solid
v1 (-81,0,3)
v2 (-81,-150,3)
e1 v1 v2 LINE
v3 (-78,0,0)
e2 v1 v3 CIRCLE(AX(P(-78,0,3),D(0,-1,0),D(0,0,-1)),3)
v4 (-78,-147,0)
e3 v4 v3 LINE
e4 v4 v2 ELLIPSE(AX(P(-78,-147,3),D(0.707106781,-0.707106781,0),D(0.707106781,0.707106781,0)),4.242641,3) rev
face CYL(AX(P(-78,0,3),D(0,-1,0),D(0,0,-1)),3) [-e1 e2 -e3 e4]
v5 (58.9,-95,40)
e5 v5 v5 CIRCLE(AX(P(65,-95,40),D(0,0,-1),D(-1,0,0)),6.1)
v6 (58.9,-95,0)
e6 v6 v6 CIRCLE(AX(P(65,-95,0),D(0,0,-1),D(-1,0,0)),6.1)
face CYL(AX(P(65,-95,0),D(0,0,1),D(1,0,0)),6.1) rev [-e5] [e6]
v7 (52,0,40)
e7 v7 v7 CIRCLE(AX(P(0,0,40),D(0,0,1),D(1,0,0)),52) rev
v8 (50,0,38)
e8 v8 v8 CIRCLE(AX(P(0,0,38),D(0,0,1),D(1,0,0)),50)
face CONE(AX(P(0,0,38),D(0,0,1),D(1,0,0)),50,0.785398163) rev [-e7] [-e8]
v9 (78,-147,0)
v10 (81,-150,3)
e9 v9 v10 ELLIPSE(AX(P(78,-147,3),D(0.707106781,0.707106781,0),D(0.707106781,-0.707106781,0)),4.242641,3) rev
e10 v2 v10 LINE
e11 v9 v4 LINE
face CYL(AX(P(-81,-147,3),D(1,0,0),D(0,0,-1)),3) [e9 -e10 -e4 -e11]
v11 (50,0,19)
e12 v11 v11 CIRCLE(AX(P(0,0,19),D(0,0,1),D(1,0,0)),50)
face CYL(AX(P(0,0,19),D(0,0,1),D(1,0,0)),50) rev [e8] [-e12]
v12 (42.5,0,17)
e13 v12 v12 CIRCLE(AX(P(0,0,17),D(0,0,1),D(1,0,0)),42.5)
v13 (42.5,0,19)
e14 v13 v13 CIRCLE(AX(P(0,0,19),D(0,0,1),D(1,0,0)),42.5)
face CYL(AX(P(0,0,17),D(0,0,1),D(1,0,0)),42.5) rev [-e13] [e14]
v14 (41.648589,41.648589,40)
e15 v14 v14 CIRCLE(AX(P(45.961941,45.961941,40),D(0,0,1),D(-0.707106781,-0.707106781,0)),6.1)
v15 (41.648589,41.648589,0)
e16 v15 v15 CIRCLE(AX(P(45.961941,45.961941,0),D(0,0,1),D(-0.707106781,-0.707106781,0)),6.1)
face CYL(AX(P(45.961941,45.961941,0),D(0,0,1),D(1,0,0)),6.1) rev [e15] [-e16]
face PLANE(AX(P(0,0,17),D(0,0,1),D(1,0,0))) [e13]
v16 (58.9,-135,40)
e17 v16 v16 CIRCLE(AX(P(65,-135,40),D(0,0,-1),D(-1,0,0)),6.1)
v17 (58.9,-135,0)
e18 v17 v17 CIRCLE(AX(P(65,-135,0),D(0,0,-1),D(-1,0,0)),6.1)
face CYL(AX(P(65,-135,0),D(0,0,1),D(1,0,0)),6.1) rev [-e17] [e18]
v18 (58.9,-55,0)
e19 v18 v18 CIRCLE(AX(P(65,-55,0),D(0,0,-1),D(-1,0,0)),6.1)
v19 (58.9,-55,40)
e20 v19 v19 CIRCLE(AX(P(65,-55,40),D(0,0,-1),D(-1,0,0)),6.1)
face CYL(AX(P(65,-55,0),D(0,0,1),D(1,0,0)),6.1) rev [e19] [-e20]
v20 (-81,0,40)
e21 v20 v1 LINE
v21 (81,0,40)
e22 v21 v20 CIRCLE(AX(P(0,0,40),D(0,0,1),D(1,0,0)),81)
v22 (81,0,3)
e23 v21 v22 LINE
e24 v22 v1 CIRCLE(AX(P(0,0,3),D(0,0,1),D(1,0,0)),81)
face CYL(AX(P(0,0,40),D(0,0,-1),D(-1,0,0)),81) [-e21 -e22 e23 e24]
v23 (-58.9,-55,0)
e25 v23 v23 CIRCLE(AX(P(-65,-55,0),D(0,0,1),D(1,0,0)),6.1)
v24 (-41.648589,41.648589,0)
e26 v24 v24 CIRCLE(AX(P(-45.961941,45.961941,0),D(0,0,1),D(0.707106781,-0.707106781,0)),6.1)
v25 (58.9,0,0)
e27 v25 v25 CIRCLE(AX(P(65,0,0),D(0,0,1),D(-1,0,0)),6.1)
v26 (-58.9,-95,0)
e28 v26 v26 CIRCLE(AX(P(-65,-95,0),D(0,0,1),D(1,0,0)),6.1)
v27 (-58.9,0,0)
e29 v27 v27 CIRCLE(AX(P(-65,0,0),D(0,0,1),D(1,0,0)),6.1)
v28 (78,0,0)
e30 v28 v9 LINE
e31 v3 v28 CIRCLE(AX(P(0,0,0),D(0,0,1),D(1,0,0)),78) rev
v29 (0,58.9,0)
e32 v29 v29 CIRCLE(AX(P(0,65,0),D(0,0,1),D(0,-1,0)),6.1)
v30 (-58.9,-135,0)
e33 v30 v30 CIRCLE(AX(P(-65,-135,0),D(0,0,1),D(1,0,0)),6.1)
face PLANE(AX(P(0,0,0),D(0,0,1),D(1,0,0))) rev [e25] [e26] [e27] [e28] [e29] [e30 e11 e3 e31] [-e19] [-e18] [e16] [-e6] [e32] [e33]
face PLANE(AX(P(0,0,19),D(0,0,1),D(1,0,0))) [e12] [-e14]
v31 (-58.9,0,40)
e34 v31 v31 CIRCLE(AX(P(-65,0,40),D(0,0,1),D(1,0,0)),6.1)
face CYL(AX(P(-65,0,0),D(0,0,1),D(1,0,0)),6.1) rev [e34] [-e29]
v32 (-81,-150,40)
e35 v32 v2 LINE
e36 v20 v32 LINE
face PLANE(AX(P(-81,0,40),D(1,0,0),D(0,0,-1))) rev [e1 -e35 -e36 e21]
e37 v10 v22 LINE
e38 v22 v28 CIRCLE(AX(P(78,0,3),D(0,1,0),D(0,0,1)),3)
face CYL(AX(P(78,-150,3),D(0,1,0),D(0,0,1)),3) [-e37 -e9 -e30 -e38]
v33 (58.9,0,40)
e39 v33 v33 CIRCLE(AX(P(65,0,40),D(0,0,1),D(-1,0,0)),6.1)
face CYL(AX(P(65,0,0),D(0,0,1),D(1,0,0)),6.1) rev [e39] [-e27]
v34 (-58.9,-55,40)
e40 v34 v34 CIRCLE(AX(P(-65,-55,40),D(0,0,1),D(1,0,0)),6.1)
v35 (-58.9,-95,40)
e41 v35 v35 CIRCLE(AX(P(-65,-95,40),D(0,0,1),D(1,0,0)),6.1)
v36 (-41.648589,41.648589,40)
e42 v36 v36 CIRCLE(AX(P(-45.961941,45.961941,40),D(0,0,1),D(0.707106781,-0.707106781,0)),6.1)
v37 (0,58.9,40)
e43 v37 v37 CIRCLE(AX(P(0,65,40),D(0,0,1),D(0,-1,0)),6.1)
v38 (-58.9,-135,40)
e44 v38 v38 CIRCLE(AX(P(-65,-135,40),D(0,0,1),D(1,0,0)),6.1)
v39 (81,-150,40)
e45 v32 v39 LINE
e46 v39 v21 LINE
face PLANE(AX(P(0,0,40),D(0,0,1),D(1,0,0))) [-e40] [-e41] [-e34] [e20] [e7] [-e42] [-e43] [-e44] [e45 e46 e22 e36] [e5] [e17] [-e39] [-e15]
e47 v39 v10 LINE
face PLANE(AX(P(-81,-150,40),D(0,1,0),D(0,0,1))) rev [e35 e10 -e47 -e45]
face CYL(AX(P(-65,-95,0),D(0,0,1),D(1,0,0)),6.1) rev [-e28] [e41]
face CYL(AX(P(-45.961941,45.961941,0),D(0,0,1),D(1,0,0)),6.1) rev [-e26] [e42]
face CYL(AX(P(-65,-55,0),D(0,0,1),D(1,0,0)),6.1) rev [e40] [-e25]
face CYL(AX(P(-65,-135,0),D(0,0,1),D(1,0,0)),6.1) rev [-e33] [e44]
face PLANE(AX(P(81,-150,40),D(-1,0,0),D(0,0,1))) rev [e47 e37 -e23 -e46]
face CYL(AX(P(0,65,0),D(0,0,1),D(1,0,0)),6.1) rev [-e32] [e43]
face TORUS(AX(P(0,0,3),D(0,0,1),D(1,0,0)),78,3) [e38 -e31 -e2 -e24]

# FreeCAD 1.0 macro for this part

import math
import FreeCAD as App
import Part
import Sketcher

V = App.Vector
Q = App.Units.Quantity


def edges_at(feature, points):
    """Names of the edges that pass closest to the given points."""
    edges = feature.Shape.Edges
    near = lambda p: min(range(len(edges)), key=lambda i: edges[i].distToShape(Part.Vertex(*p))[0])
    return sorted({f"Edge{near(p) + 1}" for p in points})

doc = App.newDocument("Part")
body = doc.addObject("PartDesign::Body", "Body")

# Sketch on XY plane
sketch1 = body.newObject("Sketcher::SketchObject", "Sketch")
sketch1.AttachmentSupport = (doc.getObject("XY_Plane"), [""])
sketch1.MapMode = "FlatFace"
sketch1.addGeometry(Part.LineSegment(V(-81, 0, 0), V(-81, -150, 0)), False)
sketch1.addGeometry(Part.LineSegment(V(-81, -150, 0), V(81, -150, 0)), False)
sketch1.addGeometry(Part.LineSegment(V(81, -150, 0), V(81, 0, 0)), False)
sketch1.addGeometry(Part.ArcOfCircle(Part.Circle(V(0, 0, 0), V(0, 0, 1), 81), math.radians(0), math.radians(180)), False)
sketch1.addConstraint(Sketcher.Constraint("Coincident", 0, 2, 1, 1))
sketch1.addConstraint(Sketcher.Constraint("Coincident", 1, 2, 2, 1))
sketch1.addConstraint(Sketcher.Constraint("Tangent", 2, 2, 3, 1))
sketch1.addConstraint(Sketcher.Constraint("Tangent", 3, 2, 0, 1))
sketch1.addConstraint(Sketcher.Constraint("Vertical", 0))
sketch1.addConstraint(Sketcher.Constraint("Horizontal", 1))
sketch1.addConstraint(Sketcher.Constraint("Vertical", 2))
sketch1.addConstraint(Sketcher.Constraint("Coincident", 3, 3, -1, 1))
sketch1.addConstraint(Sketcher.Constraint("Radius", 3, Q("81 mm")))
sketch1.addConstraint(Sketcher.Constraint("DistanceY", 0, 2, 0, 1, Q("150 mm")))
pad1 = body.newObject("PartDesign::Pad", "Pad")
pad1.Profile = sketch1
pad1.Length = 40

# Sketch on XY plane
sketch2 = body.newObject("Sketcher::SketchObject", "Sketch001")
sketch2.AttachmentSupport = (doc.getObject("XY_Plane"), [""])
sketch2.MapMode = "FlatFace"
sketch2.AttachmentOffset = App.Placement(V(0, 0, 40), App.Rotation())
sketch2.addGeometry(Part.Circle(V(-65, 0, 0), V(0, 0, 1), 6), False)
sketch2.addConstraint(Sketcher.Constraint("PointOnObject", 0, 3, -1))
sketch2.addConstraint(Sketcher.Constraint("Diameter", 0, Q("12.2 mm")))
sketch2.addConstraint(Sketcher.Constraint("DistanceX", 0, 3, -1, 1, Q("65 mm")))
pocket1 = body.newObject("PartDesign::Pocket", "Pocket")
pocket1.Profile = sketch2
pocket1.Length = 40
doc.recompute()

polarpattern = body.newObject("PartDesign::PolarPattern", "PolarPattern")
polarpattern.Originals = [pocket1]
polarpattern.Axis = (doc.getObject("Z_Axis"), [""])
polarpattern.Angle = 180
polarpattern.Occurrences = 5
polarpattern.Reversed = True
body.Tip = polarpattern

# Sketch on XY plane
sketch3 = body.newObject("Sketcher::SketchObject", "Sketch002")
sketch3.AttachmentSupport = (doc.getObject("XY_Plane"), [""])
sketch3.MapMode = "FlatFace"
sketch3.AttachmentOffset = App.Placement(V(0, 0, 40), App.Rotation())
sketch3.addGeometry(Part.Circle(V(-65, -135, 0), V(0, 0, 1), 6), False)
sketch3.addGeometry(Part.Circle(V(-65, -95, 0), V(0, 0, 1), 6), False)
sketch3.addGeometry(Part.Circle(V(-65, -55, 0), V(0, 0, 1), 6), False)
sketch3.addConstraint(Sketcher.Constraint("Equal", 0, 1))
sketch3.addConstraint(Sketcher.Constraint("Equal", 1, 2))
sketch3.addConstraint(Sketcher.Constraint("Vertical", 0, 3, 1, 3))
sketch3.addConstraint(Sketcher.Constraint("Vertical", 1, 3, 2, 3))
sketch3.addConstraint(Sketcher.Constraint("Diameter", 0, Q("12.2 mm")))
sketch3.addConstraint(Sketcher.Constraint("DistanceX", 0, 3, -1, 1, Q("65 mm")))
sketch3.addConstraint(Sketcher.Constraint("DistanceY", 0, 3, -1, 1, Q("135 mm")))
sketch3.addConstraint(Sketcher.Constraint("DistanceY", 1, 3, -1, 1, Q("95 mm")))
sketch3.addConstraint(Sketcher.Constraint("DistanceY", 2, 3, -1, 1, Q("55 mm")))
pocket2 = body.newObject("PartDesign::Pocket", "Pocket001")
pocket2.Profile = sketch3
pocket2.Length = 40
doc.recompute()

mirrored = body.newObject("PartDesign::Mirrored", "Mirrored")
mirrored.Originals = [pocket2]
mirrored.MirrorPlane = (doc.getObject("YZ_Plane"), [""])
body.Tip = mirrored

# Sketch on XY plane
sketch4 = body.newObject("Sketcher::SketchObject", "Sketch003")
sketch4.AttachmentSupport = (doc.getObject("XY_Plane"), [""])
sketch4.MapMode = "FlatFace"
sketch4.AttachmentOffset = App.Placement(V(0, 0, 40), App.Rotation())
sketch4.addGeometry(Part.Circle(V(0, 0, 0), V(0, 0, 1), 50), False)
sketch4.addConstraint(Sketcher.Constraint("Coincident", 0, 3, -1, 1))
sketch4.addConstraint(Sketcher.Constraint("Diameter", 0, Q("100 mm")))
pocket3 = body.newObject("PartDesign::Pocket", "Pocket002")
pocket3.Profile = sketch4
pocket3.Length = 21

# Sketch on XY plane
sketch5 = body.newObject("Sketcher::SketchObject", "Sketch004")
sketch5.AttachmentSupport = (doc.getObject("XY_Plane"), [""])
sketch5.MapMode = "FlatFace"
sketch5.AttachmentOffset = App.Placement(V(0, 0, 19), App.Rotation())
sketch5.addGeometry(Part.Circle(V(0, 0, 0), V(0, 0, 1), 42), False)
sketch5.addConstraint(Sketcher.Constraint("Coincident", 0, 3, -1, 1))
sketch5.addConstraint(Sketcher.Constraint("Diameter", 0, Q("85 mm")))
pocket4 = body.newObject("PartDesign::Pocket", "Pocket003")
pocket4.Profile = sketch5
pocket4.Length = 2
doc.recompute()

chamfer = body.newObject("PartDesign::Chamfer", "Chamfer")
chamfer.Base = (pocket4, edges_at(pocket4, [(-50, 0, 40)]))
chamfer.Size = 2
doc.recompute()

fillet = body.newObject("PartDesign::Fillet", "Fillet")
fillet.Base = (chamfer, edges_at(chamfer, [
    (81, -75, 0),
    (0, -150, 0),
    (-81, -75, 0),
    (0, 81, 0),
]))
fillet.Radius = 3

doc.recompute()
